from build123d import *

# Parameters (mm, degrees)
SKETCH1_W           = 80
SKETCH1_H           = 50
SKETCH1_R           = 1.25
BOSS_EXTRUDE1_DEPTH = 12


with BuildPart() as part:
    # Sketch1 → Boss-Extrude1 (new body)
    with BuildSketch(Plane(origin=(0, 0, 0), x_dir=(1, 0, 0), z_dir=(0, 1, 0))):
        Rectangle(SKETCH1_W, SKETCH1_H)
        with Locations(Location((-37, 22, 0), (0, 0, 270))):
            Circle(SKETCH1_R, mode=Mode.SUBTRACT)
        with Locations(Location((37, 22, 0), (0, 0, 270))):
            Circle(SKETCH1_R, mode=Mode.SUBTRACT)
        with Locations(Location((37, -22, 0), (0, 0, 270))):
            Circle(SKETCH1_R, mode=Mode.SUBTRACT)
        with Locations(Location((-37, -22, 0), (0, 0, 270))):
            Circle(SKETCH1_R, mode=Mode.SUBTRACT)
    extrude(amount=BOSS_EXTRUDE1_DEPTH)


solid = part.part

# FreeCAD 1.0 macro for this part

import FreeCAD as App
import Part
import Sketcher

V = App.Vector


def add_polygon(sketch, points):
    """Adds a closed chain of lines whose ends are joined by coincident constraints."""
    first, n = sketch.GeometryCount, len(points)
    for a, b in zip(points, points[1:] + points[:1]):
        sketch.addGeometry(Part.LineSegment(App.Vector(*a, 0), App.Vector(*b, 0)), False)
    for i in range(n):
        sketch.addConstraint(Sketcher.Constraint("Coincident", first + i, 2, first + (i + 1) % n, 1))

doc = App.newDocument("Part")
params = doc.addObject("Spreadsheet::Sheet", "Params")
for row, (alias, value) in enumerate([
    ("sketch1_diameter", "2.5 mm"),
    ("sketch1_width", "80 mm"),
    ("sketch1_height", "50 mm"),
    ("pad1_length", "12 mm"),
], start=1):
    params.set(f"A{row}", alias)
    params.set(f"B{row}", "=" + value)
    params.setAlias(f"B{row}", alias)

body = doc.addObject("PartDesign::Body", "Body")

sketch1 = doc.addObject("Sketcher::SketchObject", "Sketch")
body.addObject(sketch1)
sketch1.AttachmentSupport = (doc.XZ_Plane, [""])
sketch1.MapMode = "FlatFace"
add_polygon(sketch1, [(-40, -25), (-40, 25), (40, 25), (40, -25)])
sketch1.addGeometry(Part.Circle(V(-37, 22, 0), V(0, 0, 1), 1.25), False)
sketch1.addGeometry(Part.Circle(V(37, 22, 0), V(0, 0, 1), 1.25), False)
sketch1.addGeometry(Part.Circle(V(-37, -22, 0), V(0, 0, 1), 1.25), False)
sketch1.addGeometry(Part.Circle(V(37, -22, 0), V(0, 0, 1), 1.25), False)
sketch1.addConstraint([
    Sketcher.Constraint("Vertical", 0),
    Sketcher.Constraint("Horizontal", 1),
    Sketcher.Constraint("Vertical", 2),
    Sketcher.Constraint("Horizontal", 3),
    Sketcher.Constraint("Equal", 4, 5),
    Sketcher.Constraint("Equal", 5, 6),
    Sketcher.Constraint("Equal", 6, 7),
    Sketcher.Constraint("Symmetric", 5, 3, 6, 3, -1, 1),
    Sketcher.Constraint("Symmetric", 4, 3, 7, 3, -1, 1),
    Sketcher.Constraint("Symmetric", 0, 2, 2, 2, -1, 1),
    Sketcher.Constraint("Symmetric", 4, 3, 5, 3, -2),
    Sketcher.Constraint("Diameter", 4, 2.5),
    Sketcher.Constraint("DistanceX", 1, 1, 1, 2, 80.0),
    Sketcher.Constraint("DistanceY", 0, 1, 0, 2, 50.0),
    Sketcher.Constraint("DistanceX", 4, 3, -1, 1, 37.0),
    Sketcher.Constraint("DistanceY", -1, 1, 4, 3, 22.0),
])
sketch1.setExpression("Constraints[15]", "Params.sketch1_diameter")
sketch1.setExpression("Constraints[16]", "Params.sketch1_width")
sketch1.setExpression("Constraints[17]", "Params.sketch1_height")
pad1 = doc.addObject("PartDesign::Pad", "Pad")
body.addObject(pad1)
pad1.Profile = sketch1
pad1.setExpression("Length", "Params.pad1_length")
pad1.Reversed = True

doc.recompute()
